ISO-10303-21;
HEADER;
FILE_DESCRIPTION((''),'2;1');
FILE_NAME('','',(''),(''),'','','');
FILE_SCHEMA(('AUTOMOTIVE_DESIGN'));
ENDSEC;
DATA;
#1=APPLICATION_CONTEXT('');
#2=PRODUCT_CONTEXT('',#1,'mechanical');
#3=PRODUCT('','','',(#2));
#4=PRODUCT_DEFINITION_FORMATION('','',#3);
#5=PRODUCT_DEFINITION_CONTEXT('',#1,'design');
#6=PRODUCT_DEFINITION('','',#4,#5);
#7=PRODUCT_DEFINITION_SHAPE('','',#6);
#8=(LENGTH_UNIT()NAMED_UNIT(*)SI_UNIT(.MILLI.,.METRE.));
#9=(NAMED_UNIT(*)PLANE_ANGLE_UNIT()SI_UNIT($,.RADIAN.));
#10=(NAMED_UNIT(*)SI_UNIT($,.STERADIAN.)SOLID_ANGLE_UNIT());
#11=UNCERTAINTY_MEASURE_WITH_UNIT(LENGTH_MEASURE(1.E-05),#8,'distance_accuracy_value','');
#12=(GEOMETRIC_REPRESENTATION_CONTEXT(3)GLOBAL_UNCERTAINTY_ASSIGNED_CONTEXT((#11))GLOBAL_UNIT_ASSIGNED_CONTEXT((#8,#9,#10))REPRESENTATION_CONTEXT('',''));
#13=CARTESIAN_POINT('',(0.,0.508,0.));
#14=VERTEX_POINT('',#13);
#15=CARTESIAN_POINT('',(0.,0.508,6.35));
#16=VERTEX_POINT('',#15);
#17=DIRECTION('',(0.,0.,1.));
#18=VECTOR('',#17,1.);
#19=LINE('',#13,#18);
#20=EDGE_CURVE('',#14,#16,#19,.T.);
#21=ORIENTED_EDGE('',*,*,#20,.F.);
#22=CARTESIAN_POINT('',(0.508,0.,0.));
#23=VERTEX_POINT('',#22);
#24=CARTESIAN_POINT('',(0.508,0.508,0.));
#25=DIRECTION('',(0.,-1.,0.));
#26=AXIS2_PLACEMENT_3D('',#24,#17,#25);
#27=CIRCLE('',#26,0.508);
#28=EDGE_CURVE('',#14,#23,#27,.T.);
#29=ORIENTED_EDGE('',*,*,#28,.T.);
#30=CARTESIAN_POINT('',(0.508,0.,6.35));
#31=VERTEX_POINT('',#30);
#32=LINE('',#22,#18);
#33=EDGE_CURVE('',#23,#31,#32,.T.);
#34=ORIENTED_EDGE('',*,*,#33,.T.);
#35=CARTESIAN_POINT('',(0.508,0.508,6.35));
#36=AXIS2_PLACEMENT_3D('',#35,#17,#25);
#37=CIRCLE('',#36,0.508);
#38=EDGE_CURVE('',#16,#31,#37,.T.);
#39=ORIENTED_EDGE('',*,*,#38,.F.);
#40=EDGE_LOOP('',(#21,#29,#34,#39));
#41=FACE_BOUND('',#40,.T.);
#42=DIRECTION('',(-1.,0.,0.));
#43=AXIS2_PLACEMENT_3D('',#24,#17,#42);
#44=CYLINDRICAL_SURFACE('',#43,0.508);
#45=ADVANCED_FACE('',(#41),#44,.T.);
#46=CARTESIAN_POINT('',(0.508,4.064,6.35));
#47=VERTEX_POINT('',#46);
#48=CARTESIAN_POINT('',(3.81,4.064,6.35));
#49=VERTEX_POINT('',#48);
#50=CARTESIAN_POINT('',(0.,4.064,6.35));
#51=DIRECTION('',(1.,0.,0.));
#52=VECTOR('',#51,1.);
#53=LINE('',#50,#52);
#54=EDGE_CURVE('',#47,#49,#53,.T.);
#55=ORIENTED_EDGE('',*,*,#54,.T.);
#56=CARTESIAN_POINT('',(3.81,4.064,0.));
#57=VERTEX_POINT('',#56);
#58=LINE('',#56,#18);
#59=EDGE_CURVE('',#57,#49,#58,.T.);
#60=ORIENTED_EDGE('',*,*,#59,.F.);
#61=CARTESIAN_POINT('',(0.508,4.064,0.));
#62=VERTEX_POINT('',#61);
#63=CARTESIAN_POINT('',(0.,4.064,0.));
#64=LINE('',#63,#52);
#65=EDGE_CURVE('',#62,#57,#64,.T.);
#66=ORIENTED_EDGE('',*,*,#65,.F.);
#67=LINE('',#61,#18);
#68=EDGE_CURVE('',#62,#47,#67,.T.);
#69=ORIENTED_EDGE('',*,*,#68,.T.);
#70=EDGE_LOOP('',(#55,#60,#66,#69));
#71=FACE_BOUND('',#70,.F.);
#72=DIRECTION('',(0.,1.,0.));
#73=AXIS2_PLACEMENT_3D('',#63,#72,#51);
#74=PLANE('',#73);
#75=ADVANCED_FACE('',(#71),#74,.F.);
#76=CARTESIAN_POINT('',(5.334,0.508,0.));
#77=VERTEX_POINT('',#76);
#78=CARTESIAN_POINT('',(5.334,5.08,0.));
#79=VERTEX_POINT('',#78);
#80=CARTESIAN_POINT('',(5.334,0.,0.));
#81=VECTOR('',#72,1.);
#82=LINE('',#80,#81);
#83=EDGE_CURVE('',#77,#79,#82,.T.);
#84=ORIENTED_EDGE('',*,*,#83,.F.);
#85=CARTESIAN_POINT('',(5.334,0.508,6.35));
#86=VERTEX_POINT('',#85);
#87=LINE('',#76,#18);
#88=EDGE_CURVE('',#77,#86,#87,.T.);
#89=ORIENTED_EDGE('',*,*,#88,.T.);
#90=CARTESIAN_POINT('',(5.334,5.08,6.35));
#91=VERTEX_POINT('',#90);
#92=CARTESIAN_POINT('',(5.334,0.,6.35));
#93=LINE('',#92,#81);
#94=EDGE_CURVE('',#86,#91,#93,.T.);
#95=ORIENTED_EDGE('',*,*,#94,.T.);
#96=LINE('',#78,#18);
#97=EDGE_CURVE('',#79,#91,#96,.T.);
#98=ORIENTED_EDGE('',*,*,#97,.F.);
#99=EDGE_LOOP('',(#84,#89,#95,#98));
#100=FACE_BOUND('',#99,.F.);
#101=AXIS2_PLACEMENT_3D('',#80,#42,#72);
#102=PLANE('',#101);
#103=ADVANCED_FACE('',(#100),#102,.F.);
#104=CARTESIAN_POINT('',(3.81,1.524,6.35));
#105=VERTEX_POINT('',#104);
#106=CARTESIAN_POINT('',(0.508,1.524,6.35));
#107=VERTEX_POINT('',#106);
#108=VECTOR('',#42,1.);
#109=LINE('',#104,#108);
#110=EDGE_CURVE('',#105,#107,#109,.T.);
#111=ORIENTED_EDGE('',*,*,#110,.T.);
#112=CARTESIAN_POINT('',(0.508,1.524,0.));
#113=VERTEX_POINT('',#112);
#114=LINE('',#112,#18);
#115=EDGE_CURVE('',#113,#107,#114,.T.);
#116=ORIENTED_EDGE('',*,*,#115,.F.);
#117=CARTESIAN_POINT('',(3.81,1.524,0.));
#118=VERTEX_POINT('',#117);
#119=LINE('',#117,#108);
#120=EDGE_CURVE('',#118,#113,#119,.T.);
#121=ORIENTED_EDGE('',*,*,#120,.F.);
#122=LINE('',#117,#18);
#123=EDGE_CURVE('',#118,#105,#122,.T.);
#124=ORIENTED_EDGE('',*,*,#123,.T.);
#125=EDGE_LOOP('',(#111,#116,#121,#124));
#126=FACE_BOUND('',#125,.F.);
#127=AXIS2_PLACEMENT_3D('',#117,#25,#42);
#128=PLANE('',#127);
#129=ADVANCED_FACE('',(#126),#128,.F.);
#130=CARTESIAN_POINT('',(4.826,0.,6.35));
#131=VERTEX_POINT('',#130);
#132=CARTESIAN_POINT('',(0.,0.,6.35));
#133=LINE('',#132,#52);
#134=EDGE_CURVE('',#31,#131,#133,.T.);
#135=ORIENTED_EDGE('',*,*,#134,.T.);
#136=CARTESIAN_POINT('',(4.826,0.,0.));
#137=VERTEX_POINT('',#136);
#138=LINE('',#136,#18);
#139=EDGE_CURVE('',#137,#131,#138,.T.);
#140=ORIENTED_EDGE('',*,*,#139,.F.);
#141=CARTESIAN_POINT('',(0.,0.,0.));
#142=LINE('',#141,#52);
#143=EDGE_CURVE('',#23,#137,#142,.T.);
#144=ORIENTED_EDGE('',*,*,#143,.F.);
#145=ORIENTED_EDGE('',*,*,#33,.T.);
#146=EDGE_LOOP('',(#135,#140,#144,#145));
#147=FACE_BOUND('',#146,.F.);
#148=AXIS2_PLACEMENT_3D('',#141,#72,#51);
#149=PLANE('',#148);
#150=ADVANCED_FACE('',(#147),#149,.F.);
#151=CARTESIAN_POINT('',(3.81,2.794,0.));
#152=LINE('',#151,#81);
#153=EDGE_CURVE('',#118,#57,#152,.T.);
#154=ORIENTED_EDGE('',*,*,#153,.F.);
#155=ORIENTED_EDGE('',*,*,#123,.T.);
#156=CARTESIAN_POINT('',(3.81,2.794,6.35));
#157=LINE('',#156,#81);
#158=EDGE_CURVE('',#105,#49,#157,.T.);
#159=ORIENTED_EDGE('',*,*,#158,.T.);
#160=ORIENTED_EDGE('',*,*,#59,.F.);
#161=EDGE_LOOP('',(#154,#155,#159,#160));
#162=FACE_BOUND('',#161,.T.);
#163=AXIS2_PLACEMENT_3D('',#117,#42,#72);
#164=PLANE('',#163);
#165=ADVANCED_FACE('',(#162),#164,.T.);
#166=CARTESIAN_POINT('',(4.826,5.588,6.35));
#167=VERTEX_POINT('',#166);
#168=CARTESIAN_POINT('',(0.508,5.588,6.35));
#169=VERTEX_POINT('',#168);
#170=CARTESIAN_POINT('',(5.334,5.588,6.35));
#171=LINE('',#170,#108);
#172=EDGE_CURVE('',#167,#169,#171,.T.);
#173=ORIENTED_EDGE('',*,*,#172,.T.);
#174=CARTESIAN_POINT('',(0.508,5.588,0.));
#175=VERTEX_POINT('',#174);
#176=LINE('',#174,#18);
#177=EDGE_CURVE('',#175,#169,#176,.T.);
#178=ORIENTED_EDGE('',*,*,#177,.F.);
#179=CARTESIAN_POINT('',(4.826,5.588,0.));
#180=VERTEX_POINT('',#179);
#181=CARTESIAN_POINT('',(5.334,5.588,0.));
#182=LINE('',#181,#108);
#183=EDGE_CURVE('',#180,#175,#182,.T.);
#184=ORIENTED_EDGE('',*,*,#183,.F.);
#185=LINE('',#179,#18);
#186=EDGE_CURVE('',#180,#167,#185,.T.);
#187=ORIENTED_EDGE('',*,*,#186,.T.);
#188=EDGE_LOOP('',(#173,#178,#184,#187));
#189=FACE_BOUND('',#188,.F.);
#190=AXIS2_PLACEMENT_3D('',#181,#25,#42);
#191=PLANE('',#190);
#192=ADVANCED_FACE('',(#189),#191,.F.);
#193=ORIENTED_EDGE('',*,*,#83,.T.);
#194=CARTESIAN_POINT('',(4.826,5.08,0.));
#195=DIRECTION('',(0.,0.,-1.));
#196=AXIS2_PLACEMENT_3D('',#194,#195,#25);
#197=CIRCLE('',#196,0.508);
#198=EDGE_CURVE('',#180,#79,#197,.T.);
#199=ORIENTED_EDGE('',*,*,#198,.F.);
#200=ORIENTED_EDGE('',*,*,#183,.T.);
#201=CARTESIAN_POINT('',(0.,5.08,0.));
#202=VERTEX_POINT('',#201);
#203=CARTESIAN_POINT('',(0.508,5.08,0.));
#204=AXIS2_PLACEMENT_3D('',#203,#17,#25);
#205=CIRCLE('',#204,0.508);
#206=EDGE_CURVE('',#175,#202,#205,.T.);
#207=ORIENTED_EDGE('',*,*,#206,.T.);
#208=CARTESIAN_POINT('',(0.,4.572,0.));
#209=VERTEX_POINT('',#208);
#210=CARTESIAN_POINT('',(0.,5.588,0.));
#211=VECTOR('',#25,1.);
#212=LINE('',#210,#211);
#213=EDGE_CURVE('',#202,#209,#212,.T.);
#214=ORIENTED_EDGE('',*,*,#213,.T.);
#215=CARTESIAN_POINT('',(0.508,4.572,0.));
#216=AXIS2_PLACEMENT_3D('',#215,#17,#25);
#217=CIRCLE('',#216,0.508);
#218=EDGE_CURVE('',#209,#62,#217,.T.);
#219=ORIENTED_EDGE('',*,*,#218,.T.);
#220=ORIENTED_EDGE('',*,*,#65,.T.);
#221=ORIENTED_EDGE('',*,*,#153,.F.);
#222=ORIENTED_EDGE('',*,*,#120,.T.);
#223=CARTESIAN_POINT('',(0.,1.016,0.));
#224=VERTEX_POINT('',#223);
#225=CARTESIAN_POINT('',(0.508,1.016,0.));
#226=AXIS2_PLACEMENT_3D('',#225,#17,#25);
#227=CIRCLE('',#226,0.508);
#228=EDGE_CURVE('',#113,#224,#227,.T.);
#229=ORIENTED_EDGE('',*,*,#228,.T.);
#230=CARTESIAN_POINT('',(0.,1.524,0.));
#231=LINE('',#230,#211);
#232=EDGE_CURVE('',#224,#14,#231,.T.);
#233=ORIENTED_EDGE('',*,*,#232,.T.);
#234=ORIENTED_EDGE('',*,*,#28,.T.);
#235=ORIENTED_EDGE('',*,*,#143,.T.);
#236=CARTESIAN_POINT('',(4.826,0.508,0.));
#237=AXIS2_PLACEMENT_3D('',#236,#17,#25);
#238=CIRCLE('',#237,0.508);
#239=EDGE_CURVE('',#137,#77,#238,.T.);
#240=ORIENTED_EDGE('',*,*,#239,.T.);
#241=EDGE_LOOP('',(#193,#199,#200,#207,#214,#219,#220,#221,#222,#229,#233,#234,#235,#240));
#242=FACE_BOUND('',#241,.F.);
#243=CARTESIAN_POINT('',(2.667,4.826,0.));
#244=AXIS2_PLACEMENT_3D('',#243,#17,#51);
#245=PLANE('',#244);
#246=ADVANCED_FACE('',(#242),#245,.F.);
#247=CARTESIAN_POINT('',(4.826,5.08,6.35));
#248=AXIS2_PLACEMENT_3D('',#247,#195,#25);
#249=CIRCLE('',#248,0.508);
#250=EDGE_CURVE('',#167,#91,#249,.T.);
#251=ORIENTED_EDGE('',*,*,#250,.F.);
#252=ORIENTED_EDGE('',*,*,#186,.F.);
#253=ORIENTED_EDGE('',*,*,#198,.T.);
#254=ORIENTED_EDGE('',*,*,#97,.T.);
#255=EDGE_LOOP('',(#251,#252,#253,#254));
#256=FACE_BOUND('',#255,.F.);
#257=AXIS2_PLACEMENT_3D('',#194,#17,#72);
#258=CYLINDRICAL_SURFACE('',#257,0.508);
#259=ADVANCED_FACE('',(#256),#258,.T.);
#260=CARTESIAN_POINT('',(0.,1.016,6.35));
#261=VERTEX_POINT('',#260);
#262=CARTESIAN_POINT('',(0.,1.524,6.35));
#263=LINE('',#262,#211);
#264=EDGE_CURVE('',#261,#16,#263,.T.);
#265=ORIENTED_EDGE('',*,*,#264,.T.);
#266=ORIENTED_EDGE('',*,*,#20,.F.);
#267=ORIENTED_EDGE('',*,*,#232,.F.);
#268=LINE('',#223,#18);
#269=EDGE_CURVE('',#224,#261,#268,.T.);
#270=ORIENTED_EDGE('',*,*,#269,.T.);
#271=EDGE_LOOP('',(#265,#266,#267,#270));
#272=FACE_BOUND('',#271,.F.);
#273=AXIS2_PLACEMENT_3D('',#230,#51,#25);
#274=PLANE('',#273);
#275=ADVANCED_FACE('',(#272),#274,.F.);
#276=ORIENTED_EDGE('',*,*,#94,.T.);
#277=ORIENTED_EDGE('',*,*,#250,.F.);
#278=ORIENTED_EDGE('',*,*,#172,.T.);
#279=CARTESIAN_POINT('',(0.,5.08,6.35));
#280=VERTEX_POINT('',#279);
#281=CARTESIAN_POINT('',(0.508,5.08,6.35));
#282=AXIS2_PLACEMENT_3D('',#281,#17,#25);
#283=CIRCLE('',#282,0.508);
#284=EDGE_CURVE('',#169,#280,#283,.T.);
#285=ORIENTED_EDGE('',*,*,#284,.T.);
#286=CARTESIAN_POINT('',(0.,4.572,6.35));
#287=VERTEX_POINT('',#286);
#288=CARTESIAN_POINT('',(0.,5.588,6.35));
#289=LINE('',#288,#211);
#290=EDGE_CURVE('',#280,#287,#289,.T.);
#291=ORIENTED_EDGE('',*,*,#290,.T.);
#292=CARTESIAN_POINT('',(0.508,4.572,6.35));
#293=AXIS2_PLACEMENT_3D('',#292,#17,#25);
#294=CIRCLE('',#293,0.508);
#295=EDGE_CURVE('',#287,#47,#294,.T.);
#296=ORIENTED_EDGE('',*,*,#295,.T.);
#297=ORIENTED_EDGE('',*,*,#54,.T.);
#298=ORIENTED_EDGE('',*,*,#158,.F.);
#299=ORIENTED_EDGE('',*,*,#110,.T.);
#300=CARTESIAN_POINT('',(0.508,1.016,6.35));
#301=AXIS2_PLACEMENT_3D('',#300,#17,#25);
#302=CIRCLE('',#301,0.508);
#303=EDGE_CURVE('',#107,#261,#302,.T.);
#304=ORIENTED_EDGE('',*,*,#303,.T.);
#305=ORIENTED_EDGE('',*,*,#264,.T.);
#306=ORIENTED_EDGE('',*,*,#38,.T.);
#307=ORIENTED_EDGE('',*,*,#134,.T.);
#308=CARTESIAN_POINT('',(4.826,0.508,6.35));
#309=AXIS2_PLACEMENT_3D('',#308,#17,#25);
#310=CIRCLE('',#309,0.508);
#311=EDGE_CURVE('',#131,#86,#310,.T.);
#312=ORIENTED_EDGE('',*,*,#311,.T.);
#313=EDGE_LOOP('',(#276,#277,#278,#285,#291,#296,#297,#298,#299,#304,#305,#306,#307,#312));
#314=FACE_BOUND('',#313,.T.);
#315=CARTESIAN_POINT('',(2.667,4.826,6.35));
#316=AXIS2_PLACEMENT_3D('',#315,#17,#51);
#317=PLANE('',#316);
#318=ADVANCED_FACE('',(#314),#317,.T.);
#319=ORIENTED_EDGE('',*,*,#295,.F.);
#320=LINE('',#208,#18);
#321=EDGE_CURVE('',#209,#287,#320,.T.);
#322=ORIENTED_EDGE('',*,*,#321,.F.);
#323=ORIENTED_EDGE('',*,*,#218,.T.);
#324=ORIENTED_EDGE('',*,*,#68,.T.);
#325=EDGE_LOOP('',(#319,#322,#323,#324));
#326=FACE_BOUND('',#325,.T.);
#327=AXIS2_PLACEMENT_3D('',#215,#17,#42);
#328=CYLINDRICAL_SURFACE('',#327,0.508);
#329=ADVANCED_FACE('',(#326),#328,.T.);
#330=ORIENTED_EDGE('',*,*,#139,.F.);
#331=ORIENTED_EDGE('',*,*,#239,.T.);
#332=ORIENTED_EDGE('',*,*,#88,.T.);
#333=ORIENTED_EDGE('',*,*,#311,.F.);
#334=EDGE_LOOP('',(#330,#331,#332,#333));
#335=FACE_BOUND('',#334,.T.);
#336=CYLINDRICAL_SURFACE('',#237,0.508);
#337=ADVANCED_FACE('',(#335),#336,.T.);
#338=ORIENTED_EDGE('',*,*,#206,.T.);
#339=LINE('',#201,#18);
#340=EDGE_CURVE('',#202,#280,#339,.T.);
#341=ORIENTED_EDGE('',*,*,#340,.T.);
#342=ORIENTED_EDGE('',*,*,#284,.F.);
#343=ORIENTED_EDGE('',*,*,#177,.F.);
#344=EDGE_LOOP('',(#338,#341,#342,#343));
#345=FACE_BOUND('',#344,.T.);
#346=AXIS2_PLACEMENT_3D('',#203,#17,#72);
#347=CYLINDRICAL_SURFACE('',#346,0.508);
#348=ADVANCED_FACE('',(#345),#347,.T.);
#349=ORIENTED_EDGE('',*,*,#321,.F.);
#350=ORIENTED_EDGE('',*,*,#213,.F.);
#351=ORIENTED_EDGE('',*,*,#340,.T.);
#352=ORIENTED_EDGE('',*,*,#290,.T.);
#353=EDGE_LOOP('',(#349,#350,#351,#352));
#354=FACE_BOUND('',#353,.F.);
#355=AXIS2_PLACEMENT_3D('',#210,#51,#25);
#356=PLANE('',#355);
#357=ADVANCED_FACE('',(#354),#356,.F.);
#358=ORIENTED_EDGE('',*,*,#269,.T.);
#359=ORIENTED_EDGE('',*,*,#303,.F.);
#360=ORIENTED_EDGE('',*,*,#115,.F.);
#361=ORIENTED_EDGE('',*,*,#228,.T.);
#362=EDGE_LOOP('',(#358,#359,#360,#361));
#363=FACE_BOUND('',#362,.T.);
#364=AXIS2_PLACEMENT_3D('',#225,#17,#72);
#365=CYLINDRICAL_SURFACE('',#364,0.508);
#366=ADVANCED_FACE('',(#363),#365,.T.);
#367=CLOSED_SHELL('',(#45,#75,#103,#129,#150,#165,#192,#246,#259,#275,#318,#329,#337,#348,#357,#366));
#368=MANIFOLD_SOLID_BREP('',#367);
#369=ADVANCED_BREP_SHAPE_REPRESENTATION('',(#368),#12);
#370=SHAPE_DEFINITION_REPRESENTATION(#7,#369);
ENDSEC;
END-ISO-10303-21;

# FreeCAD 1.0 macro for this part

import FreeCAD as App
import Part
import Sketcher
from FreeCAD import Vector
Q = App.Units.Quantity


def edges_at(feature, points):
    """Names of the edges that pass closest to the given points."""
    edges = feature.Shape.Edges
    near = lambda p: min(range(len(edges)), key=lambda i: edges[i].distToShape(Part.Vertex(*p))[0])
    return sorted({f"Edge{near(p) + 1}" for p in points})


def add_polygon(sketch, points):
    """Adds a closed chain of lines whose ends are joined by coincident constraints."""
    first, n = sketch.GeometryCount, len(points)
    for a, b in zip(points, points[1:] + points[:1]):
        sketch.addGeometry(Part.LineSegment(App.Vector(*a, 0), App.Vector(*b, 0)), False)
    for i in range(n):
        sketch.addConstraint(Sketcher.Constraint("Coincident", first + i, 2, first + (i + 1) % n, 1))

doc = App.newDocument("Part")
body = doc.addObject("PartDesign::Body", "Body")

# Sketch on XY plane
sketch1 = body.newObject("Sketcher::SketchObject", "Sketch")
sketch1.AttachmentSupport = (doc.getObject("XY_Plane"), [""])
sketch1.MapMode = "FlatFace"
add_polygon(sketch1, [(5.3, 5.6), (0, 5.6), (0, 4.1), (3.8, 4.1), (3.8, 1.5), (0, 1.5), (0, 0), (5.3, 0)])  # lines 0-7
sketch1.addConstraint(Sketcher.Constraint("Horizontal", 0))
sketch1.addConstraint(Sketcher.Constraint("Vertical", 1))
sketch1.addConstraint(Sketcher.Constraint("Horizontal", 2))
sketch1.addConstraint(Sketcher.Constraint("Vertical", 3))
sketch1.addConstraint(Sketcher.Constraint("Horizontal", 4))
sketch1.addConstraint(Sketcher.Constraint("Vertical", 5))
sketch1.addConstraint(Sketcher.Constraint("Horizontal", 6))
sketch1.addConstraint(Sketcher.Constraint("Vertical", 7))
sketch1.addConstraint(Sketcher.Constraint("Coincident", 5, 2, -1, 1))
sketch1.addConstraint(Sketcher.Constraint("PointOnObject", 0, 2, -2))
sketch1.addConstraint(Sketcher.Constraint("Equal", 1, 5))
sketch1.addConstraint(Sketcher.Constraint("DistanceY", 3, 2, 3, 1, Q("0.1 in")))
sketch1.addConstraint(Sketcher.Constraint("DistanceX", 0, 2, 0, 1, Q("0.21 in")))
sketch1.addConstraint(Sketcher.Constraint("DistanceX", 2, 1, 2, 2, Q("0.15 in")))
sketch1.addConstraint(Sketcher.Constraint("DistanceY", 1, 2, 1, 1, Q("0.06 in")))
pad1 = body.newObject("PartDesign::Pad", "Pad")
pad1.Profile = sketch1
pad1.Length = Q("0.25 in")
doc.recompute()

fillet = body.newObject("PartDesign::Fillet", "Fillet")
fillet.Base = (pad1, edges_at(pad1, [
    (0, 4.064, 3.175),
    (0, 5.588, 3.175),
    (0, 1.524, 3.175),
    (0, 0, 3.175),
    (5.334, 0, 3.175),
    (5.334, 5.588, 3.175),
]))
fillet.Radius = Q("0.02 in")

doc.recompute()
